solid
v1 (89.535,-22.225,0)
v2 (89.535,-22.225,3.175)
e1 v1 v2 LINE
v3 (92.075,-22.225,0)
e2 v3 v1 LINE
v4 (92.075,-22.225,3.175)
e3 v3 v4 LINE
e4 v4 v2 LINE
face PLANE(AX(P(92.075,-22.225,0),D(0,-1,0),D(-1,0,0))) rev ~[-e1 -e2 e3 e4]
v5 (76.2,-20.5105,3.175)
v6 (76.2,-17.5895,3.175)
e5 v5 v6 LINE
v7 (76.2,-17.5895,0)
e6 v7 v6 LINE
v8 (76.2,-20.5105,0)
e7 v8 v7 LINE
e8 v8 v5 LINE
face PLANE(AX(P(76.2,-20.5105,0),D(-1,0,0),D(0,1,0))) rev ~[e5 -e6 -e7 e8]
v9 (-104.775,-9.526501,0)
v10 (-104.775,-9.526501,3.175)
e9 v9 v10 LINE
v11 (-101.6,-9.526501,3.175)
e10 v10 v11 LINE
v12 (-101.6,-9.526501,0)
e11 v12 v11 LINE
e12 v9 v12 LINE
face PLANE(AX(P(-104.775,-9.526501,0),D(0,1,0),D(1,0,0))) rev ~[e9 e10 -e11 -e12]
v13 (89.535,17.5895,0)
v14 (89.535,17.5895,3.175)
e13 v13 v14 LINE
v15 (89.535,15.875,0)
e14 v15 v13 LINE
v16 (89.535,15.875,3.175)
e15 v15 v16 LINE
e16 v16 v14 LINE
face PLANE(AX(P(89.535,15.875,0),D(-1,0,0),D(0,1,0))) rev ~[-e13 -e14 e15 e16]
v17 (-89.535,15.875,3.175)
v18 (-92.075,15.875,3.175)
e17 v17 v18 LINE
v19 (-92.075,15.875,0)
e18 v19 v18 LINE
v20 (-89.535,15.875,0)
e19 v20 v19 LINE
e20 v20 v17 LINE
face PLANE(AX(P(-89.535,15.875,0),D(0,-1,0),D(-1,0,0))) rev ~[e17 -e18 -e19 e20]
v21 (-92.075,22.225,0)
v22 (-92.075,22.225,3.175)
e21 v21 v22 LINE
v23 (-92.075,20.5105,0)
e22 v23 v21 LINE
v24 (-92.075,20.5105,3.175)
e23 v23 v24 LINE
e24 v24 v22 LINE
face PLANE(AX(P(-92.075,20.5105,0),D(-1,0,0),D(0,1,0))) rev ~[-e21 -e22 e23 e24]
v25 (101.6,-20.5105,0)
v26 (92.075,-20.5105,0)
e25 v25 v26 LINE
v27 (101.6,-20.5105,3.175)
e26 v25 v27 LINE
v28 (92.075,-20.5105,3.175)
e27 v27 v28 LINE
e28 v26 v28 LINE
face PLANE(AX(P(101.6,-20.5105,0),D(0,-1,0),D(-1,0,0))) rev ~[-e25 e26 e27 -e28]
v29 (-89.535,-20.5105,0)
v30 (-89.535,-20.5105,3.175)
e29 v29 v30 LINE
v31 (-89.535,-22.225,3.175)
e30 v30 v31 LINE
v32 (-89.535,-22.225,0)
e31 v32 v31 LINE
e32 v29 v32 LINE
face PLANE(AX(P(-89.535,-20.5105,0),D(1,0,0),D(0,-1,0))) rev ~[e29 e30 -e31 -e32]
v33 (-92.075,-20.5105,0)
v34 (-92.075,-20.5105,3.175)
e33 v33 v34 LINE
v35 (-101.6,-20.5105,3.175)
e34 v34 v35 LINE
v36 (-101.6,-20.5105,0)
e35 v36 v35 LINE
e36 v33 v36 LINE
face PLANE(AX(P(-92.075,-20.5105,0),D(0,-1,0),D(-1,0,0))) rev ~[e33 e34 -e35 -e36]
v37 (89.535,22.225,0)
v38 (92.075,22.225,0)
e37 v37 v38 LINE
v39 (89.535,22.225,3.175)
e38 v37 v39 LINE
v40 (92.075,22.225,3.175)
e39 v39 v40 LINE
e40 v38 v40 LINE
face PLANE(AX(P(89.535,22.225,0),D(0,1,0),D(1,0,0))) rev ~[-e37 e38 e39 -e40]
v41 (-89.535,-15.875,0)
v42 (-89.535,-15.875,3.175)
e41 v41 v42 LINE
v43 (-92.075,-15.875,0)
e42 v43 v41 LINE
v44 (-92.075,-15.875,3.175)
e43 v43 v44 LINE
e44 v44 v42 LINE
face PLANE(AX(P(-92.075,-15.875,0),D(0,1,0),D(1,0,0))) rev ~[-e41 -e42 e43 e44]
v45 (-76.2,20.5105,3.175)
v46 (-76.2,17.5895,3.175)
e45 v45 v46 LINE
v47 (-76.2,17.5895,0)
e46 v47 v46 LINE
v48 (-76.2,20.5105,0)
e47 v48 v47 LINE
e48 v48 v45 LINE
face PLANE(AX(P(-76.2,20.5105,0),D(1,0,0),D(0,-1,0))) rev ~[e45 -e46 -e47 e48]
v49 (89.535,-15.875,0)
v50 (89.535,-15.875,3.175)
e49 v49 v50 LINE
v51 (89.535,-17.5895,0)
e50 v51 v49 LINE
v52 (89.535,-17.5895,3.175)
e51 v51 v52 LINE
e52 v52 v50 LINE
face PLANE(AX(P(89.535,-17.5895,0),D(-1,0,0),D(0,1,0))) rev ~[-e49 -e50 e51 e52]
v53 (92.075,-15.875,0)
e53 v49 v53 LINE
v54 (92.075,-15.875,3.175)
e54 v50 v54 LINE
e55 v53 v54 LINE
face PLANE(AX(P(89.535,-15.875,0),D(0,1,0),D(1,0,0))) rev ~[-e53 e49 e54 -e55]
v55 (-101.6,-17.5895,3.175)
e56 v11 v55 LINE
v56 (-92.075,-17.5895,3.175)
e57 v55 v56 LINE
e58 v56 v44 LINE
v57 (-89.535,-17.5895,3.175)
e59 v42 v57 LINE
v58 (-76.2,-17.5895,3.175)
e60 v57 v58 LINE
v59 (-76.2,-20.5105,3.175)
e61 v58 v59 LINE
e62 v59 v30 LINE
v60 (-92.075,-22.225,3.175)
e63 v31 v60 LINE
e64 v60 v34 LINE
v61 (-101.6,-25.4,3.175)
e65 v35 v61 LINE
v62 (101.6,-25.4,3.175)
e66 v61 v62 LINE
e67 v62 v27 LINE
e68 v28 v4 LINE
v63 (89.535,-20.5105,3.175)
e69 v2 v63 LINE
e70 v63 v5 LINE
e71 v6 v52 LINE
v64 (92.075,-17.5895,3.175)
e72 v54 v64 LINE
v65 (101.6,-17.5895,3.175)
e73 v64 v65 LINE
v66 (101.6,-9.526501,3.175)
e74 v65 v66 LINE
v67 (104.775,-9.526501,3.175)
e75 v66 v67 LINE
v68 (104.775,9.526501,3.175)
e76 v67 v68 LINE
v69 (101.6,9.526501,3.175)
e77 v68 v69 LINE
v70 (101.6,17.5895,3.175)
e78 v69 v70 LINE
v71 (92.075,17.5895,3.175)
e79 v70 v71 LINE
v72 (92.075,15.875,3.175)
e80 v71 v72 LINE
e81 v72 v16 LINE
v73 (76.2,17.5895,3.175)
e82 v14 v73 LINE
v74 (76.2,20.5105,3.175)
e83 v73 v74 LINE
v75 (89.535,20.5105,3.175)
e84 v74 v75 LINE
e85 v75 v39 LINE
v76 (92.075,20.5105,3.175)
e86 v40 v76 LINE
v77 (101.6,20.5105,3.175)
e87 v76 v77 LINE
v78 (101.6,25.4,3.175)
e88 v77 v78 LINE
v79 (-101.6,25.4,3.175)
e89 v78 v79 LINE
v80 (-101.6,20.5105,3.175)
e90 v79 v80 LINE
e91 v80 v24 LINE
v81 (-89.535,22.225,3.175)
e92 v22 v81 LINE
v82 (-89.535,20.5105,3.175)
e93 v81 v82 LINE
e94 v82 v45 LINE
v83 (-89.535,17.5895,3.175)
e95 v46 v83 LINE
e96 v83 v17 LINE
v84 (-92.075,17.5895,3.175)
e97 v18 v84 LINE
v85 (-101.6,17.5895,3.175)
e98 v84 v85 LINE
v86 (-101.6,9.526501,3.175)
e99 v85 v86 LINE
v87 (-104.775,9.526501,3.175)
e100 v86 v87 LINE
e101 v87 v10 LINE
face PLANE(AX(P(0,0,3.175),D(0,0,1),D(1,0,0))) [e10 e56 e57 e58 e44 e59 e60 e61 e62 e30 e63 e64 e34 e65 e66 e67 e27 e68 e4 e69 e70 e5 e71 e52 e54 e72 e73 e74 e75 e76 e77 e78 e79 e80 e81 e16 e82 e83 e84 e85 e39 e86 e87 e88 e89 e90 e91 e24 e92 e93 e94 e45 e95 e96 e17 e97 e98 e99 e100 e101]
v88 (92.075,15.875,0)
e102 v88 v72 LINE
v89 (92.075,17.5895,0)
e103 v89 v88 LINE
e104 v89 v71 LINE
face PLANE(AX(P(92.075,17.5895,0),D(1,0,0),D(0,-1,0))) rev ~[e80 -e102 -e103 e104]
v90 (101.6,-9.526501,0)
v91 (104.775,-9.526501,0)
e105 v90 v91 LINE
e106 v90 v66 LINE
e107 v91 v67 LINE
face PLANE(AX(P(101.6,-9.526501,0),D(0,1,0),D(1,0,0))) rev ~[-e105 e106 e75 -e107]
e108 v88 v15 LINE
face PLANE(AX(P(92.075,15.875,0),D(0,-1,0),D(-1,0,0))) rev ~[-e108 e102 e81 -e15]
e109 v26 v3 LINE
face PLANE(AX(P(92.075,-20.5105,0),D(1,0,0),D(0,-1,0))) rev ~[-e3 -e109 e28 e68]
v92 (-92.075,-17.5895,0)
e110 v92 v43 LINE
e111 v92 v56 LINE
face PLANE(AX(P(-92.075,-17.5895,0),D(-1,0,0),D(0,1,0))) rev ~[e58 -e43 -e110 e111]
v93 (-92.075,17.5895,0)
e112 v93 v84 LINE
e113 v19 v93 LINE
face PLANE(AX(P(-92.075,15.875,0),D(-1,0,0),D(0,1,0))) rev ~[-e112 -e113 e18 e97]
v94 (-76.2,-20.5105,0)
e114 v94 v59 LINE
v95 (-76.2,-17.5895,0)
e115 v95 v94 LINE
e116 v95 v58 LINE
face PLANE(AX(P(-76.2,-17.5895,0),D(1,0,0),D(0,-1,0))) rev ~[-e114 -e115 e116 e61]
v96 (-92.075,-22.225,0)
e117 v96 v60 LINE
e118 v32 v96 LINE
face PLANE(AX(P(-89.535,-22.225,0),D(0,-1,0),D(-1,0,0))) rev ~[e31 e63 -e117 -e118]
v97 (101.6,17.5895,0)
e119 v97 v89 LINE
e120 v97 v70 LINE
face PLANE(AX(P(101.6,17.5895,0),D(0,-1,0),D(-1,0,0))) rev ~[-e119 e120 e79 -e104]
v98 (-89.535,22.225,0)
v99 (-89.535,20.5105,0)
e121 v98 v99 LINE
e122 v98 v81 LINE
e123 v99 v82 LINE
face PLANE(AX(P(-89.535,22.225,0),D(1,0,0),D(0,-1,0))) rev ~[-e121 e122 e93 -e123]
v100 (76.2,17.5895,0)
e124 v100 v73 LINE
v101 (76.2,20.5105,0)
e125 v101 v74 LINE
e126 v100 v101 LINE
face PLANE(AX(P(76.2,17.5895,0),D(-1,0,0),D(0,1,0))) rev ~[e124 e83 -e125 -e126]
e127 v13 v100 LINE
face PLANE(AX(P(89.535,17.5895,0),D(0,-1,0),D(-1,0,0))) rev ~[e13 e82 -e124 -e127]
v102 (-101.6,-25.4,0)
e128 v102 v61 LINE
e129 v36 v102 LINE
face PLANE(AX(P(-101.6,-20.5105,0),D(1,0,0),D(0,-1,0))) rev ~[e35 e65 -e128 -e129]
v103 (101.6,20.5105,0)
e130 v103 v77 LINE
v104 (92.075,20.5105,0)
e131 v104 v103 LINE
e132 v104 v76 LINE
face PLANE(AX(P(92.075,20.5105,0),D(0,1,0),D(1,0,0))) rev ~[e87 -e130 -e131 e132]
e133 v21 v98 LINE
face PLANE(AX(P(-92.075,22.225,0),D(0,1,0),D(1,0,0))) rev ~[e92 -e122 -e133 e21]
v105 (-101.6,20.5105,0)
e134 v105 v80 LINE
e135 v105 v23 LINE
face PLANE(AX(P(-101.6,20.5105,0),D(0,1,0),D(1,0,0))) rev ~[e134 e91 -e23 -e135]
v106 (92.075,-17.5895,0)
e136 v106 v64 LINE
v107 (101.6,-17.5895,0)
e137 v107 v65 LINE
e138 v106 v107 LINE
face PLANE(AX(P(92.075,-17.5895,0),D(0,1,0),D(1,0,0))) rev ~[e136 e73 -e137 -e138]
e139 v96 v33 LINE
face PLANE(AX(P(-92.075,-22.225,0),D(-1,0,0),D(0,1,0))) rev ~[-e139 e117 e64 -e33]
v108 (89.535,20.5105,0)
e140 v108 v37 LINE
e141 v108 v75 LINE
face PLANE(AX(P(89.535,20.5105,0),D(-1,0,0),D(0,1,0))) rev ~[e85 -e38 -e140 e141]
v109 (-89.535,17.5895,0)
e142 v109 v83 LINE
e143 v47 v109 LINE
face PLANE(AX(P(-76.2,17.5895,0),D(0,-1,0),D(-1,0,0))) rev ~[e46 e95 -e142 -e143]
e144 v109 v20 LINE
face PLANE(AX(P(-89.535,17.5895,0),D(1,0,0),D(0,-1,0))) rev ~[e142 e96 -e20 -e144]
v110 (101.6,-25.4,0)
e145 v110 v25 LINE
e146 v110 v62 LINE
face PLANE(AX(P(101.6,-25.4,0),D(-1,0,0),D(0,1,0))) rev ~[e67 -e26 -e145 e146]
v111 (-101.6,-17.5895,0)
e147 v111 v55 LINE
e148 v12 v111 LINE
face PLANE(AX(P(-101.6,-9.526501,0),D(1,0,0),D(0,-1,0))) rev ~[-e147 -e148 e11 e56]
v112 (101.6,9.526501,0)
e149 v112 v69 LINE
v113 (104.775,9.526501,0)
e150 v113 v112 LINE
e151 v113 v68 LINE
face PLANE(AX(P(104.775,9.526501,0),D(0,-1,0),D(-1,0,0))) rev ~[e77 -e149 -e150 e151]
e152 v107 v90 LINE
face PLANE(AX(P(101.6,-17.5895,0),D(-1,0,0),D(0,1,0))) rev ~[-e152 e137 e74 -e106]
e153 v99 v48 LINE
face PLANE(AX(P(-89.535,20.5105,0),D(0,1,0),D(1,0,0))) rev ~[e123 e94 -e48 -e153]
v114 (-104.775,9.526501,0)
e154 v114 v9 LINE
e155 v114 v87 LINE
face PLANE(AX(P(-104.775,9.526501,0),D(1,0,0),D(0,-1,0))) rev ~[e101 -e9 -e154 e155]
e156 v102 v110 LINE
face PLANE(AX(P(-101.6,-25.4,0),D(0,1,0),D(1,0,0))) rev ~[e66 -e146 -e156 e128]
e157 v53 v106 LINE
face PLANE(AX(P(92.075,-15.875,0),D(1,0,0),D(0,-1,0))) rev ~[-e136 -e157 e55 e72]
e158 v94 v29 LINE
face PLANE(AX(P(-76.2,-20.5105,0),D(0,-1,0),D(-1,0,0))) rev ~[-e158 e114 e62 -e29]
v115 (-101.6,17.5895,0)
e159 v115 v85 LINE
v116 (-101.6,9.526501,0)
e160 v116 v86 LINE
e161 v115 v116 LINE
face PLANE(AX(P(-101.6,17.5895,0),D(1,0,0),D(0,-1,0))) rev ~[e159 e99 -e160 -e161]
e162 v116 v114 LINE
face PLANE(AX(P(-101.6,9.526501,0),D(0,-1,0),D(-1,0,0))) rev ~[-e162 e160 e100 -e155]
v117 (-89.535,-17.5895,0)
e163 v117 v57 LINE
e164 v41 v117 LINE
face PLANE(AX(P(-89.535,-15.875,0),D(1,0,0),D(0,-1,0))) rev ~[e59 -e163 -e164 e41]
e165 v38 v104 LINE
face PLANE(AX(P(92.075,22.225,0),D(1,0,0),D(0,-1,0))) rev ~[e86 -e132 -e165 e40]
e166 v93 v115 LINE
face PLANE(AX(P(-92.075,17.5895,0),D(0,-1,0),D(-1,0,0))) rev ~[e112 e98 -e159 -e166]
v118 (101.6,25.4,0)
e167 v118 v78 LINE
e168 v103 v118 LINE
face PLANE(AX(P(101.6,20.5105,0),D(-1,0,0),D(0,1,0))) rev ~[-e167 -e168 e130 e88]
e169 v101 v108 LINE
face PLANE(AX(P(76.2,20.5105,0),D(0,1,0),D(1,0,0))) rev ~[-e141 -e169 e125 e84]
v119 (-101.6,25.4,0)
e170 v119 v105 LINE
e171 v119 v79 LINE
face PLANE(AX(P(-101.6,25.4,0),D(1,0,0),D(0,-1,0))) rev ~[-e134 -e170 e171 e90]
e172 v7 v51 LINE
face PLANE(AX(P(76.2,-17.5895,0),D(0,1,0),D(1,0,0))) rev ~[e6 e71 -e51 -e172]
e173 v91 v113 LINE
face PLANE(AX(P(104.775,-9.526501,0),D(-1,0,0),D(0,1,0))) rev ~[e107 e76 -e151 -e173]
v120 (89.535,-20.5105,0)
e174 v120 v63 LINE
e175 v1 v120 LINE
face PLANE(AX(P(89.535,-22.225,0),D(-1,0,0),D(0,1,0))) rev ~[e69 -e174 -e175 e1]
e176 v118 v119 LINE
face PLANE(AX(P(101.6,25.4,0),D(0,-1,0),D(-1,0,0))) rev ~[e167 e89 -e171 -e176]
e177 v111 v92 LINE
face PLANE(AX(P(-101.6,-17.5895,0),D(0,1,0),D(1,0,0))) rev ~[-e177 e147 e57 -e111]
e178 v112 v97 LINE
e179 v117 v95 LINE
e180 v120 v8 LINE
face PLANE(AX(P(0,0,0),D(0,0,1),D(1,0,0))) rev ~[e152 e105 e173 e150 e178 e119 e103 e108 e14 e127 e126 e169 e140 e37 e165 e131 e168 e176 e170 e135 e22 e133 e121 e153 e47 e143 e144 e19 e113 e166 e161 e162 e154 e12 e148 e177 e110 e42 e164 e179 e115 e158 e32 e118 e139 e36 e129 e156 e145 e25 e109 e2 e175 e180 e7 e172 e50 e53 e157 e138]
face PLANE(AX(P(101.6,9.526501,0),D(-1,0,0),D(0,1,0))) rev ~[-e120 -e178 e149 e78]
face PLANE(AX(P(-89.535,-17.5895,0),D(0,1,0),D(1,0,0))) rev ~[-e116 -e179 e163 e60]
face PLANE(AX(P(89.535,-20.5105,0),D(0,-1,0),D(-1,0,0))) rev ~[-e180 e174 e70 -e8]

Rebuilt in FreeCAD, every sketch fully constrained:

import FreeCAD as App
import Part
import Sketcher
from FreeCAD import Vector
Q = App.Units.Quantity


def add_polygon(sketch, points):
    """Adds a closed chain of lines whose ends are joined by coincident constraints."""
    first, n = sketch.GeometryCount, len(points)
    for a, b in zip(points, points[1:] + points[:1]):
        sketch.addGeometry(Part.LineSegment(App.Vector(*a, 0), App.Vector(*b, 0)), False)
    for i in range(n):
        sketch.addConstraint(Sketcher.Constraint("Coincident", first + i, 2, first + (i + 1) % n, 1))

doc = App.newDocument("Part")
body = doc.addObject("PartDesign::Body", "Body")

sketch1 = body.newObject("Sketcher::SketchObject", "Sketch")
sketch1.AttachmentSupport = (doc.getObject("XY_Plane"), [""])
sketch1.MapMode = "FlatFace"
add_polygon(sketch1, [(101.6, 25.4), (-101.6, 25.4), (-101.6, 20.5), (-92.1, 20.5), (-92.1, 22.2), (-89.5, 22.2), (-89.5, 20.5), (-76.2, 20.5), (-76.2, 17.6), (-89.5, 17.6), (-89.5, 15.9), (-92.1, 15.9), (-92.1, 17.6), (-101.6, 17.6), (-101.6, 9.5), (-104.8, 9.5), (-104.8, -9.5), (-101.6, -9.5), (-101.6, -17.6), (-92.1, -17.6), (-92.1, -15.9), (-89.5, -15.9), (-89.5, -17.6), (-76.2, -17.6), (-76.2, -20.5), (-89.5, -20.5), (-89.5, -22.2), (-92.1, -22.2), (-92.1, -20.5), (-101.6, -20.5), (-101.6, -25.4), (101.6, -25.4), (101.6, -20.5), (92.1, -20.5), (92.1, -22.2), (89.5, -22.2), (89.5, -20.5), (76.2, -20.5), (76.2, -17.6), (89.5, -17.6), (89.5, -15.9), (92.1, -15.9), (92.1, -17.6), (101.6, -17.6), (101.6, -9.5), (104.8, -9.5), (104.8, 9.5), (101.6, 9.5), (101.6, 17.6), (92.1, 17.6), (92.1, 15.9), (89.5, 15.9), (89.5, 17.6), (76.2, 17.6), (76.2, 20.5), (89.5, 20.5), (89.5, 22.2), (92.1, 22.2), (92.1, 20.5), (101.6, 20.5)])
sketch1.addConstraint([
    Sketcher.Constraint("Horizontal", 0),
    Sketcher.Constraint("Vertical", 1),
    Sketcher.Constraint("Horizontal", 2),
    Sketcher.Constraint("Vertical", 3),
    Sketcher.Constraint("Horizontal", 4),
    Sketcher.Constraint("Vertical", 5),
    Sketcher.Constraint("Horizontal", 6),
    Sketcher.Constraint("Vertical", 7),
    Sketcher.Constraint("Horizontal", 8),
    Sketcher.Constraint("Vertical", 9),
    Sketcher.Constraint("Horizontal", 10),
    Sketcher.Constraint("Vertical", 11),
    Sketcher.Constraint("Horizontal", 12),
    Sketcher.Constraint("Vertical", 13),
    Sketcher.Constraint("Horizontal", 14),
    Sketcher.Constraint("Vertical", 15),
    Sketcher.Constraint("Horizontal", 16),
    Sketcher.Constraint("Vertical", 17),
    Sketcher.Constraint("Horizontal", 18),
    Sketcher.Constraint("Vertical", 19),
    Sketcher.Constraint("Horizontal", 20),
    Sketcher.Constraint("Vertical", 21),
    Sketcher.Constraint("Horizontal", 22),
    Sketcher.Constraint("Vertical", 23),
    Sketcher.Constraint("Horizontal", 24),
    Sketcher.Constraint("Vertical", 25),
    Sketcher.Constraint("Horizontal", 26),
    Sketcher.Constraint("Vertical", 27),
    Sketcher.Constraint("Horizontal", 28),
    Sketcher.Constraint("Vertical", 29),
    Sketcher.Constraint("Horizontal", 30),
    Sketcher.Constraint("Vertical", 31),
    Sketcher.Constraint("Horizontal", 32),
    Sketcher.Constraint("Vertical", 33),
    Sketcher.Constraint("Horizontal", 34),
    Sketcher.Constraint("Vertical", 35),
    Sketcher.Constraint("Horizontal", 36),
    Sketcher.Constraint("Vertical", 37),
    Sketcher.Constraint("Horizontal", 38),
    Sketcher.Constraint("Vertical", 39),
    Sketcher.Constraint("Horizontal", 40),
    Sketcher.Constraint("Vertical", 41),
    Sketcher.Constraint("Horizontal", 42),
    Sketcher.Constraint("Vertical", 43),
    Sketcher.Constraint("Horizontal", 44),
    Sketcher.Constraint("Vertical", 45),
    Sketcher.Constraint("Horizontal", 46),
    Sketcher.Constraint("Vertical", 47),
    Sketcher.Constraint("Horizontal", 48),
    Sketcher.Constraint("Vertical", 49),
    Sketcher.Constraint("Horizontal", 50),
    Sketcher.Constraint("Vertical", 51),
    Sketcher.Constraint("Horizontal", 52),
    Sketcher.Constraint("Vertical", 53),
    Sketcher.Constraint("Horizontal", 54),
    Sketcher.Constraint("Vertical", 55),
    Sketcher.Constraint("Horizontal", 56),
    Sketcher.Constraint("Vertical", 57),
    Sketcher.Constraint("Horizontal", 58),
    Sketcher.Constraint("Vertical", 59),
    Sketcher.Constraint("Symmetric", 0, 2, 30, 2, -1, 1),
    Sketcher.Constraint("Symmetric", 2, 2, 32, 2, -1, 1),
    Sketcher.Constraint("Symmetric", 4, 2, 34, 2, -1, 1),
    Sketcher.Constraint("Symmetric", 6, 2, 36, 2, -1, 1),
    Sketcher.Constraint("Symmetric", 8, 2, 38, 2, -1, 1),
    Sketcher.Constraint("Symmetric", 10, 2, 40, 2, -1, 1),
    Sketcher.Constraint("Symmetric", 12, 2, 42, 2, -1, 1),
    Sketcher.Constraint("Symmetric", 14, 2, 44, 2, -1, 1),
    Sketcher.Constraint("Symmetric", 16, 2, 46, 2, -1, 1),
    Sketcher.Constraint("Symmetric", 18, 2, 48, 2, -1, 1),
    Sketcher.Constraint("Symmetric", 20, 2, 50, 2, -1, 1),
    Sketcher.Constraint("Symmetric", 22, 2, 52, 2, -1, 1),
    Sketcher.Constraint("Symmetric", 24, 2, 54, 2, -1, 1),
    Sketcher.Constraint("Symmetric", 26, 2, 56, 2, -1, 1),
    Sketcher.Constraint("Symmetric", 28, 2, 58, 2, -1, 1),
    Sketcher.Constraint("Symmetric", 28, 2, 31, 2, -2),
    Sketcher.Constraint("Symmetric", 26, 2, 33, 2, -2),
    Sketcher.Constraint("Symmetric", 24, 2, 35, 2, -2),
    Sketcher.Constraint("Symmetric", 22, 2, 37, 2, -2),
    Sketcher.Constraint("Symmetric", 20, 2, 39, 2, -2),
    Sketcher.Constraint("Symmetric", 18, 2, 41, 2, -2),
    Sketcher.Constraint("Symmetric", 16, 2, 43, 2, -2),
    Sketcher.Constraint("Horizontal", 2, 2, 5, 2),
    Sketcher.Constraint("Horizontal", 8, 2, 11, 2),
    Sketcher.Constraint("Vertical", 5, 2, 8, 2),
    Sketcher.Constraint("Vertical", 3, 2, 10, 2),
    Sketcher.Constraint("Vertical", 1, 2, 12, 2),
    Sketcher.Constraint("Equal", 5, 9),
    Sketcher.Constraint("DistanceX", 0, 2, 0, 1, Q("8 in")),
    Sketcher.Constraint("DistanceX", 4, 1, 4, 2, Q("0.1 in")),
    Sketcher.Constraint("DistanceY", -1, 1, 0, 2, Q("1 in")),
    Sketcher.Constraint("DistanceX", 6, 2, -1, 1, Q("3 in")),
    Sketcher.Constraint("DistanceX", 14, 2, 10, 2, Q("0.5 in")),
    Sketcher.Constraint("DistanceY", 31, 2, 7, 2, Q("1.5 in")),
    Sketcher.Constraint("DistanceX", 2, 1, 2, 2, Q("0.375 in")),
    Sketcher.Constraint("DistanceY", 7, 2, 7, 1, Q("0.115 in")),
    Sketcher.Constraint("DistanceY", 9, 2, 4, 2, Q("0.25 in")),
    Sketcher.Constraint("DistanceY", 13, 2, 13, 1, Q("8.062999 mm")),
])
pad1 = body.newObject("PartDesign::Pad", "Pad")
pad1.Profile = sketch1
pad1.Length = Q("0.125 in")

doc.recompute()
